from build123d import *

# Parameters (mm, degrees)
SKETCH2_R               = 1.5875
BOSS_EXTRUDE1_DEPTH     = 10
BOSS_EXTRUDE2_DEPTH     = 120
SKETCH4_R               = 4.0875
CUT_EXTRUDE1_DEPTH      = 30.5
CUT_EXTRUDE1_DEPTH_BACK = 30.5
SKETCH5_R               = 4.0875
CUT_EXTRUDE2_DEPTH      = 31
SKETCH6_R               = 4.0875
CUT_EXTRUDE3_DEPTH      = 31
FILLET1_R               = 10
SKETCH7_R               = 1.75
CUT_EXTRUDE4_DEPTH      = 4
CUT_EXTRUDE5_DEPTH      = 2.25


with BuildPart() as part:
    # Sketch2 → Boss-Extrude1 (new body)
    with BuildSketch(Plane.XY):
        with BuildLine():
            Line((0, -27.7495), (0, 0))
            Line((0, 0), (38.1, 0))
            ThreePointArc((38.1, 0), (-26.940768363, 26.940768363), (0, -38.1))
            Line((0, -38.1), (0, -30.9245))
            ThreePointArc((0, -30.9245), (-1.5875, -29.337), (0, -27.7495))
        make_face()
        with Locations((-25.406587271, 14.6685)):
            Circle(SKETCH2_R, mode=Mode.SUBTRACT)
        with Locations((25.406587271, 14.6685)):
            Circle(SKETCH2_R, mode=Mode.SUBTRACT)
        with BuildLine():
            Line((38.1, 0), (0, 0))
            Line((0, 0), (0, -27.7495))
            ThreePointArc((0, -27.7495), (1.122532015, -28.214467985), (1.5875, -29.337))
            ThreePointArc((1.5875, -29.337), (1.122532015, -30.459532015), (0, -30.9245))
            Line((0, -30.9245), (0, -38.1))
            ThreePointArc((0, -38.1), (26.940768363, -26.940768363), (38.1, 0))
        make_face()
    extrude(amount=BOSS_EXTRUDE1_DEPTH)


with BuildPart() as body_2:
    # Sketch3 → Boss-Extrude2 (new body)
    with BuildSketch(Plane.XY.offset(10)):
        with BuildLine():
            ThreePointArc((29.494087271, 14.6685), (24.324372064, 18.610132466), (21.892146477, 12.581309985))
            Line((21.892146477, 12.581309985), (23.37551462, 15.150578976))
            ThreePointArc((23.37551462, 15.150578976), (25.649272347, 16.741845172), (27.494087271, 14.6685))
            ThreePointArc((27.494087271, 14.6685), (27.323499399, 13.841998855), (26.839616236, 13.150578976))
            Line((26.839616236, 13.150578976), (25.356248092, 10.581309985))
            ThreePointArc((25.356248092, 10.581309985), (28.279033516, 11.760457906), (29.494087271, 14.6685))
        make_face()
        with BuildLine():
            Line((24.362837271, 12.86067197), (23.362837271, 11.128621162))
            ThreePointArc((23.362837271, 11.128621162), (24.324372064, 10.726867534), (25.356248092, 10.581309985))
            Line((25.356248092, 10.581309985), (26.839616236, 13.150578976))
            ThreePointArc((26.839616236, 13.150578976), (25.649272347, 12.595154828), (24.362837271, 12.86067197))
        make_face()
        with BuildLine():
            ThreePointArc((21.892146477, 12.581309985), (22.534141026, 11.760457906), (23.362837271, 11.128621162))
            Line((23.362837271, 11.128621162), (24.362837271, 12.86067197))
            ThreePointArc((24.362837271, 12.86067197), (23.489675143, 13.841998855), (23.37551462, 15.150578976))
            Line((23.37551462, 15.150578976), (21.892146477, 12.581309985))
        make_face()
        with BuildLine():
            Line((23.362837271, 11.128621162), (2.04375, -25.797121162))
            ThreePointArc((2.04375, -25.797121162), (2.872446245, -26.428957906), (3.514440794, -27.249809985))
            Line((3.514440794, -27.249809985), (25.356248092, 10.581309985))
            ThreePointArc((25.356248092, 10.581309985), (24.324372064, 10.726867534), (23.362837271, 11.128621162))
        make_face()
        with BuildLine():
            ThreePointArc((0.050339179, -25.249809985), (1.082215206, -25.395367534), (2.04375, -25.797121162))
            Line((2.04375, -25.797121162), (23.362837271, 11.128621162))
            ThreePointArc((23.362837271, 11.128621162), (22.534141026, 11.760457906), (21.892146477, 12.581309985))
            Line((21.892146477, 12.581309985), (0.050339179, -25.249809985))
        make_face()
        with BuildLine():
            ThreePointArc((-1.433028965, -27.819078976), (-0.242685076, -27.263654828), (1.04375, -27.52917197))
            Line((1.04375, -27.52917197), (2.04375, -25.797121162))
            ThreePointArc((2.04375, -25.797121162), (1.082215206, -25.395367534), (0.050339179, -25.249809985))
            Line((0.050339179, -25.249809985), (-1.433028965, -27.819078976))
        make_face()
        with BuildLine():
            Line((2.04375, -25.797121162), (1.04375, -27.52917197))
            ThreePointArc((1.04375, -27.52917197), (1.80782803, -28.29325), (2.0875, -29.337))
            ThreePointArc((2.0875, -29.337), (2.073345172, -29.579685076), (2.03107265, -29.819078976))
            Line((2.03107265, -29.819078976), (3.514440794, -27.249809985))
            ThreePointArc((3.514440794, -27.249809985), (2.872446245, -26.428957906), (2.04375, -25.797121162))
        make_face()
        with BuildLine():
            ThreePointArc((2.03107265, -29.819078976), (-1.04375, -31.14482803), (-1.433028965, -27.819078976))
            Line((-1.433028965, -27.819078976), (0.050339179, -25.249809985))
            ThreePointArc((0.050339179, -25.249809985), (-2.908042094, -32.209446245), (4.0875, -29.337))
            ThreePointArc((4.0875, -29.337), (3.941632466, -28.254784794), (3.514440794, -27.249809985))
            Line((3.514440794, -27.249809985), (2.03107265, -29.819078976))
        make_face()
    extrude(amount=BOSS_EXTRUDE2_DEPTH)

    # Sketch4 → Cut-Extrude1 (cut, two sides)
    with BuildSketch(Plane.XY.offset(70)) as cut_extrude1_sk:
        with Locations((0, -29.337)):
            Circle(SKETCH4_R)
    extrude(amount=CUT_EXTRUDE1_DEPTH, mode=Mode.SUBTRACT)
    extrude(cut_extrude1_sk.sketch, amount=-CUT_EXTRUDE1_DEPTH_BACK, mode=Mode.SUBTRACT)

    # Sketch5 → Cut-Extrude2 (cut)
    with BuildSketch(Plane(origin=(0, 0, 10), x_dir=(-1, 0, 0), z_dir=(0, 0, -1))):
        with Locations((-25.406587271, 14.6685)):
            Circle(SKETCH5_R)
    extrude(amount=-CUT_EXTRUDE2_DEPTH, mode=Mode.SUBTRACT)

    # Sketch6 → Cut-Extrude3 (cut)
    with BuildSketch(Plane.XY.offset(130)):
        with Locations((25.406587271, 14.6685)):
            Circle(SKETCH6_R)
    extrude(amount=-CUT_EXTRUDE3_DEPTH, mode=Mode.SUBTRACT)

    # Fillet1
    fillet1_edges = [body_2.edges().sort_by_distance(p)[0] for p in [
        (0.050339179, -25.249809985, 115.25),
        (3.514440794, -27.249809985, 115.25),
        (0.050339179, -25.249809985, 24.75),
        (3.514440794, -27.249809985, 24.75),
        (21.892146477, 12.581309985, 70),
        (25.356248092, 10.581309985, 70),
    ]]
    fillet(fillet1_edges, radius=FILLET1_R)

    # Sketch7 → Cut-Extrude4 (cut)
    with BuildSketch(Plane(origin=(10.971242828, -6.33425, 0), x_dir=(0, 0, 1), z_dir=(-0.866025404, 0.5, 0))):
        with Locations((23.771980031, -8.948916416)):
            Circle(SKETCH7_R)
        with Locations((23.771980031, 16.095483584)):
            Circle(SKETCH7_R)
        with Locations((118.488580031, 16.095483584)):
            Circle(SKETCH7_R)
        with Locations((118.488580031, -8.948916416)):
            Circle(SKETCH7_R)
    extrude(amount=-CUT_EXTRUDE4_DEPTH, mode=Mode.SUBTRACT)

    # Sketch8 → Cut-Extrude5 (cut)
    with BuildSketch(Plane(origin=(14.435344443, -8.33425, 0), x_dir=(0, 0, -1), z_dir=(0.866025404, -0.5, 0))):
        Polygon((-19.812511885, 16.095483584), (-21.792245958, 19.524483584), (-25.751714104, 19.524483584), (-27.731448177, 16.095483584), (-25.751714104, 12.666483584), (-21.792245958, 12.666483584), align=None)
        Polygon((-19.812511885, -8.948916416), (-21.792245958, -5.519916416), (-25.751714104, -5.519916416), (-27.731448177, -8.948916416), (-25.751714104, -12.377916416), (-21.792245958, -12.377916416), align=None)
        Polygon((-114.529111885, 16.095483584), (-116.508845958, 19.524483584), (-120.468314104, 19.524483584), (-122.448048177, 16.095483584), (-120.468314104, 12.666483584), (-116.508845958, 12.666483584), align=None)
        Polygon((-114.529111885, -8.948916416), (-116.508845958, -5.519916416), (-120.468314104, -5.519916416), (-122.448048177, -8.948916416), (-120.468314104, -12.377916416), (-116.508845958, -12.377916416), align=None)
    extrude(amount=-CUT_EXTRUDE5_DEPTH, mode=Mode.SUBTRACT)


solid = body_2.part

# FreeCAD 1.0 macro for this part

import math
import FreeCAD as App
import Part
import Sketcher

V = App.Vector
Q = App.Units.Quantity


def edges_at(feature, points):
    """Names of the edges that pass closest to the given points."""
    edges = feature.Shape.Edges
    near = lambda p: min(range(len(edges)), key=lambda i: edges[i].distToShape(Part.Vertex(*p))[0])
    return sorted({f"Edge{near(p) + 1}" for p in points})


def add_polygon(sketch, points):
    """Adds a closed chain of lines whose ends are joined by coincident constraints."""
    first, n = sketch.GeometryCount, len(points)
    for a, b in zip(points, points[1:] + points[:1]):
        sketch.addGeometry(Part.LineSegment(App.Vector(*a, 0), App.Vector(*b, 0)), False)
    for i in range(n):
        sketch.addConstraint(Sketcher.Constraint("Coincident", first + i, 2, first + (i + 1) % n, 1))

doc = App.newDocument("Part")
body = doc.addObject("PartDesign::Body", "Body")

# Sketch on XY plane
sketch1 = body.newObject("Sketcher::SketchObject", "Sketch")
sketch1.AttachmentSupport = (doc.getObject("XY_Plane"), [""])
sketch1.MapMode = "FlatFace"
sketch1.addGeometry([
    Part.ArcOfCircle(Part.Circle(V(0, 0, 0), V(0, 0, 1), 38.1), math.radians(0), math.radians(270)),  # 0
    Part.ArcOfCircle(Part.Circle(V(0, 0, 0), V(0, 0, 1), 38.1), math.radians(-90), math.radians(0)),  # 1
    Part.ArcOfCircle(Part.Circle(V(0, -29.3, 0), V(0, 0, 1), 1.6), math.radians(90), math.radians(270)),  # 2
    Part.ArcOfCircle(Part.Circle(V(0, -29.3, 0), V(0, 0, 1), 1.6), math.radians(0), math.radians(90)),  # 3
    Part.ArcOfCircle(Part.Circle(V(0, -29.3, 0), V(0, 0, 1), 1.6), math.radians(-90), math.radians(0)),  # 4
    Part.Circle(V(-25.4, 14.7, 0), V(0, 0, 1), 1.6),  # 5
    Part.Circle(V(25.4, 14.7, 0), V(0, 0, 1), 1.6),  # 6
], False)
sketch1.addConstraint([
    Sketcher.Constraint("Tangent", 0, 1, 1, 2),
    Sketcher.Constraint("Coincident", 1, 1, 0, 2),
    Sketcher.Constraint("Tangent", 2, 1, 3, 2),
    Sketcher.Constraint("Tangent", 3, 1, 4, 2),
    Sketcher.Constraint("Tangent", 4, 1, 2, 2),
    Sketcher.Constraint("Coincident", 0, 3, -1, 1),
    Sketcher.Constraint("Equal", 4, 5),
    Sketcher.Constraint("Equal", 5, 6),
    Sketcher.Constraint("Symmetric", 5, 3, 6, 3, -2),
    Sketcher.Constraint("PointOnObject", 2, 3, -2),
    Sketcher.Constraint("PointOnObject", 0, 1, -1),
    Sketcher.Constraint("PointOnObject", 1, 1, -2),
    Sketcher.Constraint("PointOnObject", 2, 1, -2),
    Sketcher.Constraint("PointOnObject", 4, 1, -2),
    Sketcher.Constraint("Horizontal", 4, 3, 3, 1),
    Sketcher.Constraint("Radius", 0, Q("38.1 mm")),
    Sketcher.Constraint("Diameter", 5, Q("3.175 mm")),
    Sketcher.Constraint("DistanceY", 2, 3, -1, 1, Q("29.337 mm")),
    Sketcher.Constraint("DistanceY", -1, 1, 5, 3, Q("14.6685 mm")),
    Sketcher.Constraint("DistanceX", 5, 3, -1, 1, Q("25.406587 mm")),
])
pad1 = body.newObject("PartDesign::Pad", "Pad")
pad1.Profile = sketch1
pad1.Length = 10
body2 = doc.addObject("PartDesign::Body", "Body001")

# Sketch on XY plane
sketch2 = body2.newObject("Sketcher::SketchObject", "Sketch001")
sketch2.AttachmentSupport = (doc.getObject("XY_Plane001"), [""])
sketch2.MapMode = "FlatFace"
sketch2.AttachmentOffset = App.Placement(V(0, 0, 10), App.Rotation())
sketch2.addGeometry([
    Part.ArcOfCircle(Part.Circle(V(25.41, 14.67, 0), V(0, 0, 1), 4.09), math.radians(0), math.radians(211)),  # 0
    Part.LineSegment(V(21.89, 12.58, 0), V(0.05, -25.25, 0)),  # 1
    Part.ArcOfCircle(Part.Circle(V(0, -29.34, 0), V(0, 0, 1), 4.09), math.radians(89), math.radians(360)),  # 2
    Part.ArcOfCircle(Part.Circle(V(0, -29.34, 0), V(0, 0, 1), 4.09), math.radians(0), math.radians(31)),  # 3
    Part.LineSegment(V(3.51, -27.25, 0), V(25.36, 10.58, 0)),  # 4
    Part.ArcOfCircle(Part.Circle(V(25.41, 14.67, 0), V(0, 0, 1), 4.09), math.radians(-91), math.radians(0)),  # 5
    Part.ArcOfCircle(Part.Circle(V(0, -29.34, 0), V(0, 0, 1), 2.09), math.radians(60), math.radians(133)),  # 6
    Part.ArcOfCircle(Part.Circle(V(0, -29.34, 0), V(0, 0, 1), 2.09), math.radians(0), math.radians(60)),  # 7
    Part.ArcOfCircle(Part.Circle(V(0, -29.34, 0), V(0, 0, 1), 2.09), math.radians(-13.35), math.radians(0)),  # 8
    Part.ArcOfCircle(Part.Circle(V(0, -29.34, 0), V(0, 0, 1), 2.09), math.radians(133), math.radians(347)),  # 9
    Part.ArcOfCircle(Part.Circle(V(25.41, 14.67, 0), V(0, 0, 1), 2.09), math.radians(0), math.radians(167)),  # 10
    Part.ArcOfCircle(Part.Circle(V(25.41, 14.67, 0), V(0, 0, 1), 2.09), math.radians(-47), math.radians(0)),  # 11
    Part.ArcOfCircle(Part.Circle(V(25.41, 14.67, 0), V(0, 0, 1), 2.09), math.radians(-120), math.radians(-47)),  # 12
    Part.ArcOfCircle(Part.Circle(V(25.41, 14.67, 0), V(0, 0, 1), 2.09), math.radians(167), math.radians(240)),  # 13
], False)
sketch2.addConstraint([
    Sketcher.Constraint("Coincident", 0, 2, 1, 1),
    Sketcher.Constraint("Coincident", 1, 2, 2, 1),
    Sketcher.Constraint("Tangent", 2, 2, 3, 1),
    Sketcher.Constraint("Coincident", 3, 2, 4, 1),
    Sketcher.Constraint("Coincident", 4, 2, 5, 1),
    Sketcher.Constraint("Tangent", 5, 2, 0, 1),
    Sketcher.Constraint("Tangent", 6, 1, 7, 2),
    Sketcher.Constraint("Tangent", 7, 1, 8, 2),
    Sketcher.Constraint("Tangent", 8, 1, 9, 2),
    Sketcher.Constraint("Tangent", 9, 1, 6, 2),
    Sketcher.Constraint("Tangent", 10, 1, 11, 2),
    Sketcher.Constraint("Tangent", 11, 1, 12, 2),
    Sketcher.Constraint("Tangent", 12, 1, 13, 2),
    Sketcher.Constraint("Tangent", 13, 1, 10, 2),
    Sketcher.Constraint("Coincident", 6, 3, 2, 3),
    Sketcher.Constraint("Coincident", 10, 3, 0, 3),
    Sketcher.Constraint("Equal", 0, 2),
    Sketcher.Constraint("Equal", 2, 3),
    Sketcher.Constraint("Equal", 3, 5),
    Sketcher.Constraint("Equal", 6, 7),
    Sketcher.Constraint("Equal", 9, 10),
    Sketcher.Constraint("Equal", 10, 11),
    Sketcher.Constraint("PointOnObject", 2, 3, -2),
    Sketcher.Constraint("Parallel", 1, 4),
    Sketcher.Constraint("Horizontal", 9, 3, 2, 2),
    Sketcher.Constraint("Horizontal", 13, 3, 5, 2),
    Sketcher.Constraint("Horizontal", 2, 2, 7, 1),
    Sketcher.Constraint("Horizontal", 5, 2, 10, 1),
    Sketcher.Constraint("Equal", 1, 4),
    Sketcher.Constraint("Angle", 1, Q("-120 deg")),
    Sketcher.Constraint("DistanceY", 3, 2, 1, 2, Q("2 mm")),
    Sketcher.Constraint("DistanceX", 7, 1, 2, 2, Q("2 mm")),
    Sketcher.Constraint("Radius", 0, Q("4.0875 mm")),
    Sketcher.Constraint("DistanceY", 2, 3, -1, 1, Q("29.337 mm")),
    Sketcher.Constraint("DistanceY", -1, 1, 0, 3, Q("14.6685 mm")),
    Sketcher.Constraint("DistanceX", 1, 2, 3, 2, Q("3.464102 mm")),
    Sketcher.Constraint("DistanceX", -1, 1, 6, 1, Q("1.04375 mm")),
    Sketcher.Constraint("DistanceY", 8, 1, -1, 1, Q("29.819079 mm")),
    Sketcher.Constraint("DistanceX", 9, 1, -1, 1, Q("1.433029 mm")),
    Sketcher.Constraint("DistanceY", -1, 1, 11, 1, Q("13.150579 mm")),
    Sketcher.Constraint("DistanceY", -1, 1, 12, 1, Q("12.860672 mm")),
    Sketcher.Constraint("DistanceY", -1, 1, 13, 1, Q("15.150579 mm")),
])
pad2 = body2.newObject("PartDesign::Pad", "Pad001")
pad2.Profile = sketch2
pad2.Length = 120

# Sketch on XY plane
sketch3 = body2.newObject("Sketcher::SketchObject", "Sketch002")
sketch3.AttachmentSupport = (doc.getObject("XY_Plane001"), [""])
sketch3.MapMode = "FlatFace"
sketch3.AttachmentOffset = App.Placement(V(0, 0, 70), App.Rotation())
sketch3.addGeometry(Part.Circle(V(0, -29.3, 0), V(0, 0, 1), 4.1), False)
sketch3.addConstraint([
    Sketcher.Constraint("PointOnObject", 0, 3, -2),
    Sketcher.Constraint("Diameter", 0, Q("8.175 mm")),
    Sketcher.Constraint("DistanceY", 0, 3, -1, 1, Q("29.337 mm")),
])
pocket1 = body2.newObject("PartDesign::Pocket", "Pocket")
pocket1.Profile = sketch3
pocket1.Type = "TwoLengths"
pocket1.Length = 30.5
pocket1.Length2 = 30.5
pocket1.Reversed = True

# Sketch on XY plane
sketch4 = body2.newObject("Sketcher::SketchObject", "Sketch003")
sketch4.AttachmentSupport = (doc.getObject("XY_Plane001"), [""])
sketch4.MapMode = "FlatFace"
sketch4.AttachmentOffset = App.Placement(V(0, 0, 10), App.Rotation())
sketch4.addGeometry(Part.Circle(V(25.4, 14.7, 0), V(0, 0, 1), 4.1), False)
sketch4.addConstraint([
    Sketcher.Constraint("Diameter", 0, Q("8.175 mm")),
    Sketcher.Constraint("DistanceY", -1, 1, 0, 3, Q("14.6685 mm")),
    Sketcher.Constraint("DistanceX", -1, 1, 0, 3, Q("25.406587 mm")),
])
pocket2 = body2.newObject("PartDesign::Pocket", "Pocket001")
pocket2.Profile = sketch4
pocket2.Length = 31
pocket2.Reversed = True

# Sketch on XY plane
sketch5 = body2.newObject("Sketcher::SketchObject", "Sketch004")
sketch5.AttachmentSupport = (doc.getObject("XY_Plane001"), [""])
sketch5.MapMode = "FlatFace"
sketch5.AttachmentOffset = App.Placement(V(0, 0, 130), App.Rotation())
sketch5.addGeometry(Part.Circle(V(25.4, 14.7, 0), V(0, 0, 1), 4.1), False)
sketch5.addConstraint([
    Sketcher.Constraint("Diameter", 0, Q("8.175 mm")),
    Sketcher.Constraint("DistanceY", -1, 1, 0, 3, Q("14.6685 mm")),
    Sketcher.Constraint("DistanceX", -1, 1, 0, 3, Q("25.406587 mm")),
])
pocket3 = body2.newObject("PartDesign::Pocket", "Pocket002")
pocket3.Profile = sketch5
pocket3.Length = 31
doc.recompute()

fillet = body2.newObject("PartDesign::Fillet", "Fillet")
fillet.Base = (pocket3, edges_at(pocket3, [
    (0.05, -25.25, 115.25),
    (3.514, -27.25, 115.25),
    (0.05, -25.25, 24.75),
    (3.514, -27.25, 24.75),
    (21.892, 12.581, 70),
    (25.356, 10.581, 70),
]))
fillet.Radius = 10

# Sketch on an angled plane
sketch6 = body2.newObject("Sketcher::SketchObject", "Sketch005")
sketch6.Placement = App.Placement(V(10.971243, -6.33425, 0), App.Rotation(V(0, 0, 1), V(0.5, 0.866025404, 0), V(-0.866025404, 0.5, 0), "ZXY"))
sketch6.addGeometry([
    Part.Circle(V(23.8, -8.9, 0), V(0, 0, 1), 1.8),
    Part.Circle(V(23.8, 16.1, 0), V(0, 0, 1), 1.8),
    Part.Circle(V(118.5, 16.1, 0), V(0, 0, 1), 1.8),
    Part.Circle(V(118.5, -8.9, 0), V(0, 0, 1), 1.8),
], False)
sketch6.addConstraint([
    Sketcher.Constraint("Equal", 0, 1),
    Sketcher.Constraint("Equal", 1, 2),
    Sketcher.Constraint("Equal", 2, 3),
    Sketcher.Constraint("Horizontal", 1, 3, 2, 3),
    Sketcher.Constraint("Horizontal", 0, 3, 3, 3),
    Sketcher.Constraint("Vertical", 0, 3, 1, 3),
    Sketcher.Constraint("Vertical", 2, 3, 3, 3),
    Sketcher.Constraint("Diameter", 0, Q("3.5 mm")),
    Sketcher.Constraint("DistanceY", 0, 3, 1, 3, Q("25.0444 mm")),
    Sketcher.Constraint("DistanceX", 1, 3, 2, 3, Q("94.7166 mm")),
    Sketcher.Constraint("DistanceX", -1, 1, 0, 3, Q("23.77198 mm")),
    Sketcher.Constraint("DistanceY", 0, 3, -1, 1, Q("8.948916 mm")),
])
pocket4 = body2.newObject("PartDesign::Pocket", "Pocket003")
pocket4.Profile = sketch6
pocket4.Length = 4

# Sketch on an angled plane
sketch7 = body2.newObject("Sketcher::SketchObject", "Sketch006")
sketch7.Placement = App.Placement(V(14.435344, -8.33425, 0), App.Rotation(V(0, 0, -1), V(0.5, 0.866025404, 0), V(0.866025404, -0.5, 0), "ZXY"))
add_polygon(sketch7, [(-19.8, 16.1), (-21.8, 19.5), (-25.8, 19.5), (-27.7, 16.1), (-25.8, 12.7), (-21.8, 12.7)])  # lines 0-5
add_polygon(sketch7, [(-19.8, -8.9), (-21.8, -5.5), (-25.8, -5.5), (-27.7, -8.9), (-25.8, -12.4), (-21.8, -12.4)])  # lines 6-11
add_polygon(sketch7, [(-114.5, 16.1), (-116.5, 19.5), (-120.5, 19.5), (-122.4, 16.1), (-120.5, 12.7), (-116.5, 12.7)])  # lines 12-17
add_polygon(sketch7, [(-114.5, -8.9), (-116.5, -5.5), (-120.5, -5.5), (-122.4, -8.9), (-120.5, -12.4), (-116.5, -12.4)])  # lines 18-23
sketch7.addConstraint([
    Sketcher.Constraint("Horizontal", 1),
    Sketcher.Constraint("Horizontal", 4),
    Sketcher.Constraint("Horizontal", 7),
    Sketcher.Constraint("Horizontal", 10),
    Sketcher.Constraint("Horizontal", 13),
    Sketcher.Constraint("Horizontal", 16),
    Sketcher.Constraint("Horizontal", 19),
    Sketcher.Constraint("Horizontal", 22),
    Sketcher.Constraint("Parallel", 0, 3),
    Sketcher.Constraint("Parallel", 2, 5),
    Sketcher.Constraint("Parallel", 3, 6),
    Sketcher.Constraint("Parallel", 5, 8),
    Sketcher.Constraint("Parallel", 6, 9),
    Sketcher.Constraint("Parallel", 8, 11),
    Sketcher.Constraint("Parallel", 9, 12),
    Sketcher.Constraint("Parallel", 11, 14),
    Sketcher.Constraint("Parallel", 12, 15),
    Sketcher.Constraint("Parallel", 14, 17),
    Sketcher.Constraint("Parallel", 15, 18),
    Sketcher.Constraint("Parallel", 17, 20),
    Sketcher.Constraint("Parallel", 18, 21),
    Sketcher.Constraint("Parallel", 20, 23),
    Sketcher.Constraint("Horizontal", 2, 2, 5, 2),
    Sketcher.Constraint("Horizontal", 8, 2, 11, 2),
    Sketcher.Constraint("Horizontal", 1, 2, 12, 2),
    Sketcher.Constraint("Horizontal", 5, 2, 14, 2),
    Sketcher.Constraint("Horizontal", 4, 2, 15, 2),
    Sketcher.Constraint("Horizontal", 14, 2, 17, 2),
    Sketcher.Constraint("Horizontal", 7, 2, 18, 2),
    Sketcher.Constraint("Horizontal", 11, 2, 20, 2),
    Sketcher.Constraint("Horizontal", 10, 2, 21, 2),
    Sketcher.Constraint("Horizontal", 20, 2, 23, 2),
    Sketcher.Constraint("Vertical", 1, 2, 3, 2),
    Sketcher.Constraint("Vertical", 0, 2, 4, 2),
    Sketcher.Constraint("Vertical", 4, 2, 6, 2),
    Sketcher.Constraint("Vertical", 3, 2, 7, 2),
    Sketcher.Constraint("Vertical", 2, 2, 8, 2),
    Sketcher.Constraint("Vertical", 7, 2, 9, 2),
    Sketcher.Constraint("Vertical", 16, 2, 18, 2),
    Sketcher.Constraint("Vertical", 15, 2, 19, 2),
    Sketcher.Constraint("Equal", 10, 13),
    Sketcher.Constraint("Angle", 0, Q("120 deg")),
    Sketcher.Constraint("DistanceY", 2, 2, 1, 2, Q("3.429 mm")),
    Sketcher.Constraint("DistanceX", 1, 2, 1, 1, Q("3.959468 mm")),
    Sketcher.Constraint("DistanceY", 6, 2, 4, 2, Q("18.1864 mm")),
    Sketcher.Constraint("DistanceX", 13, 2, 1, 2, Q("94.7166 mm")),
    Sketcher.Constraint("DistanceX", 2, 2, -1, 1, Q("27.731448 mm")),
    Sketcher.Constraint("DistanceY", -1, 1, 0, 2, Q("19.524484 mm")),
])
pocket5 = body2.newObject("PartDesign::Pocket", "Pocket004")
pocket5.Profile = sketch7
pocket5.Length = 2.25
body.Visibility = False

doc.recompute()
